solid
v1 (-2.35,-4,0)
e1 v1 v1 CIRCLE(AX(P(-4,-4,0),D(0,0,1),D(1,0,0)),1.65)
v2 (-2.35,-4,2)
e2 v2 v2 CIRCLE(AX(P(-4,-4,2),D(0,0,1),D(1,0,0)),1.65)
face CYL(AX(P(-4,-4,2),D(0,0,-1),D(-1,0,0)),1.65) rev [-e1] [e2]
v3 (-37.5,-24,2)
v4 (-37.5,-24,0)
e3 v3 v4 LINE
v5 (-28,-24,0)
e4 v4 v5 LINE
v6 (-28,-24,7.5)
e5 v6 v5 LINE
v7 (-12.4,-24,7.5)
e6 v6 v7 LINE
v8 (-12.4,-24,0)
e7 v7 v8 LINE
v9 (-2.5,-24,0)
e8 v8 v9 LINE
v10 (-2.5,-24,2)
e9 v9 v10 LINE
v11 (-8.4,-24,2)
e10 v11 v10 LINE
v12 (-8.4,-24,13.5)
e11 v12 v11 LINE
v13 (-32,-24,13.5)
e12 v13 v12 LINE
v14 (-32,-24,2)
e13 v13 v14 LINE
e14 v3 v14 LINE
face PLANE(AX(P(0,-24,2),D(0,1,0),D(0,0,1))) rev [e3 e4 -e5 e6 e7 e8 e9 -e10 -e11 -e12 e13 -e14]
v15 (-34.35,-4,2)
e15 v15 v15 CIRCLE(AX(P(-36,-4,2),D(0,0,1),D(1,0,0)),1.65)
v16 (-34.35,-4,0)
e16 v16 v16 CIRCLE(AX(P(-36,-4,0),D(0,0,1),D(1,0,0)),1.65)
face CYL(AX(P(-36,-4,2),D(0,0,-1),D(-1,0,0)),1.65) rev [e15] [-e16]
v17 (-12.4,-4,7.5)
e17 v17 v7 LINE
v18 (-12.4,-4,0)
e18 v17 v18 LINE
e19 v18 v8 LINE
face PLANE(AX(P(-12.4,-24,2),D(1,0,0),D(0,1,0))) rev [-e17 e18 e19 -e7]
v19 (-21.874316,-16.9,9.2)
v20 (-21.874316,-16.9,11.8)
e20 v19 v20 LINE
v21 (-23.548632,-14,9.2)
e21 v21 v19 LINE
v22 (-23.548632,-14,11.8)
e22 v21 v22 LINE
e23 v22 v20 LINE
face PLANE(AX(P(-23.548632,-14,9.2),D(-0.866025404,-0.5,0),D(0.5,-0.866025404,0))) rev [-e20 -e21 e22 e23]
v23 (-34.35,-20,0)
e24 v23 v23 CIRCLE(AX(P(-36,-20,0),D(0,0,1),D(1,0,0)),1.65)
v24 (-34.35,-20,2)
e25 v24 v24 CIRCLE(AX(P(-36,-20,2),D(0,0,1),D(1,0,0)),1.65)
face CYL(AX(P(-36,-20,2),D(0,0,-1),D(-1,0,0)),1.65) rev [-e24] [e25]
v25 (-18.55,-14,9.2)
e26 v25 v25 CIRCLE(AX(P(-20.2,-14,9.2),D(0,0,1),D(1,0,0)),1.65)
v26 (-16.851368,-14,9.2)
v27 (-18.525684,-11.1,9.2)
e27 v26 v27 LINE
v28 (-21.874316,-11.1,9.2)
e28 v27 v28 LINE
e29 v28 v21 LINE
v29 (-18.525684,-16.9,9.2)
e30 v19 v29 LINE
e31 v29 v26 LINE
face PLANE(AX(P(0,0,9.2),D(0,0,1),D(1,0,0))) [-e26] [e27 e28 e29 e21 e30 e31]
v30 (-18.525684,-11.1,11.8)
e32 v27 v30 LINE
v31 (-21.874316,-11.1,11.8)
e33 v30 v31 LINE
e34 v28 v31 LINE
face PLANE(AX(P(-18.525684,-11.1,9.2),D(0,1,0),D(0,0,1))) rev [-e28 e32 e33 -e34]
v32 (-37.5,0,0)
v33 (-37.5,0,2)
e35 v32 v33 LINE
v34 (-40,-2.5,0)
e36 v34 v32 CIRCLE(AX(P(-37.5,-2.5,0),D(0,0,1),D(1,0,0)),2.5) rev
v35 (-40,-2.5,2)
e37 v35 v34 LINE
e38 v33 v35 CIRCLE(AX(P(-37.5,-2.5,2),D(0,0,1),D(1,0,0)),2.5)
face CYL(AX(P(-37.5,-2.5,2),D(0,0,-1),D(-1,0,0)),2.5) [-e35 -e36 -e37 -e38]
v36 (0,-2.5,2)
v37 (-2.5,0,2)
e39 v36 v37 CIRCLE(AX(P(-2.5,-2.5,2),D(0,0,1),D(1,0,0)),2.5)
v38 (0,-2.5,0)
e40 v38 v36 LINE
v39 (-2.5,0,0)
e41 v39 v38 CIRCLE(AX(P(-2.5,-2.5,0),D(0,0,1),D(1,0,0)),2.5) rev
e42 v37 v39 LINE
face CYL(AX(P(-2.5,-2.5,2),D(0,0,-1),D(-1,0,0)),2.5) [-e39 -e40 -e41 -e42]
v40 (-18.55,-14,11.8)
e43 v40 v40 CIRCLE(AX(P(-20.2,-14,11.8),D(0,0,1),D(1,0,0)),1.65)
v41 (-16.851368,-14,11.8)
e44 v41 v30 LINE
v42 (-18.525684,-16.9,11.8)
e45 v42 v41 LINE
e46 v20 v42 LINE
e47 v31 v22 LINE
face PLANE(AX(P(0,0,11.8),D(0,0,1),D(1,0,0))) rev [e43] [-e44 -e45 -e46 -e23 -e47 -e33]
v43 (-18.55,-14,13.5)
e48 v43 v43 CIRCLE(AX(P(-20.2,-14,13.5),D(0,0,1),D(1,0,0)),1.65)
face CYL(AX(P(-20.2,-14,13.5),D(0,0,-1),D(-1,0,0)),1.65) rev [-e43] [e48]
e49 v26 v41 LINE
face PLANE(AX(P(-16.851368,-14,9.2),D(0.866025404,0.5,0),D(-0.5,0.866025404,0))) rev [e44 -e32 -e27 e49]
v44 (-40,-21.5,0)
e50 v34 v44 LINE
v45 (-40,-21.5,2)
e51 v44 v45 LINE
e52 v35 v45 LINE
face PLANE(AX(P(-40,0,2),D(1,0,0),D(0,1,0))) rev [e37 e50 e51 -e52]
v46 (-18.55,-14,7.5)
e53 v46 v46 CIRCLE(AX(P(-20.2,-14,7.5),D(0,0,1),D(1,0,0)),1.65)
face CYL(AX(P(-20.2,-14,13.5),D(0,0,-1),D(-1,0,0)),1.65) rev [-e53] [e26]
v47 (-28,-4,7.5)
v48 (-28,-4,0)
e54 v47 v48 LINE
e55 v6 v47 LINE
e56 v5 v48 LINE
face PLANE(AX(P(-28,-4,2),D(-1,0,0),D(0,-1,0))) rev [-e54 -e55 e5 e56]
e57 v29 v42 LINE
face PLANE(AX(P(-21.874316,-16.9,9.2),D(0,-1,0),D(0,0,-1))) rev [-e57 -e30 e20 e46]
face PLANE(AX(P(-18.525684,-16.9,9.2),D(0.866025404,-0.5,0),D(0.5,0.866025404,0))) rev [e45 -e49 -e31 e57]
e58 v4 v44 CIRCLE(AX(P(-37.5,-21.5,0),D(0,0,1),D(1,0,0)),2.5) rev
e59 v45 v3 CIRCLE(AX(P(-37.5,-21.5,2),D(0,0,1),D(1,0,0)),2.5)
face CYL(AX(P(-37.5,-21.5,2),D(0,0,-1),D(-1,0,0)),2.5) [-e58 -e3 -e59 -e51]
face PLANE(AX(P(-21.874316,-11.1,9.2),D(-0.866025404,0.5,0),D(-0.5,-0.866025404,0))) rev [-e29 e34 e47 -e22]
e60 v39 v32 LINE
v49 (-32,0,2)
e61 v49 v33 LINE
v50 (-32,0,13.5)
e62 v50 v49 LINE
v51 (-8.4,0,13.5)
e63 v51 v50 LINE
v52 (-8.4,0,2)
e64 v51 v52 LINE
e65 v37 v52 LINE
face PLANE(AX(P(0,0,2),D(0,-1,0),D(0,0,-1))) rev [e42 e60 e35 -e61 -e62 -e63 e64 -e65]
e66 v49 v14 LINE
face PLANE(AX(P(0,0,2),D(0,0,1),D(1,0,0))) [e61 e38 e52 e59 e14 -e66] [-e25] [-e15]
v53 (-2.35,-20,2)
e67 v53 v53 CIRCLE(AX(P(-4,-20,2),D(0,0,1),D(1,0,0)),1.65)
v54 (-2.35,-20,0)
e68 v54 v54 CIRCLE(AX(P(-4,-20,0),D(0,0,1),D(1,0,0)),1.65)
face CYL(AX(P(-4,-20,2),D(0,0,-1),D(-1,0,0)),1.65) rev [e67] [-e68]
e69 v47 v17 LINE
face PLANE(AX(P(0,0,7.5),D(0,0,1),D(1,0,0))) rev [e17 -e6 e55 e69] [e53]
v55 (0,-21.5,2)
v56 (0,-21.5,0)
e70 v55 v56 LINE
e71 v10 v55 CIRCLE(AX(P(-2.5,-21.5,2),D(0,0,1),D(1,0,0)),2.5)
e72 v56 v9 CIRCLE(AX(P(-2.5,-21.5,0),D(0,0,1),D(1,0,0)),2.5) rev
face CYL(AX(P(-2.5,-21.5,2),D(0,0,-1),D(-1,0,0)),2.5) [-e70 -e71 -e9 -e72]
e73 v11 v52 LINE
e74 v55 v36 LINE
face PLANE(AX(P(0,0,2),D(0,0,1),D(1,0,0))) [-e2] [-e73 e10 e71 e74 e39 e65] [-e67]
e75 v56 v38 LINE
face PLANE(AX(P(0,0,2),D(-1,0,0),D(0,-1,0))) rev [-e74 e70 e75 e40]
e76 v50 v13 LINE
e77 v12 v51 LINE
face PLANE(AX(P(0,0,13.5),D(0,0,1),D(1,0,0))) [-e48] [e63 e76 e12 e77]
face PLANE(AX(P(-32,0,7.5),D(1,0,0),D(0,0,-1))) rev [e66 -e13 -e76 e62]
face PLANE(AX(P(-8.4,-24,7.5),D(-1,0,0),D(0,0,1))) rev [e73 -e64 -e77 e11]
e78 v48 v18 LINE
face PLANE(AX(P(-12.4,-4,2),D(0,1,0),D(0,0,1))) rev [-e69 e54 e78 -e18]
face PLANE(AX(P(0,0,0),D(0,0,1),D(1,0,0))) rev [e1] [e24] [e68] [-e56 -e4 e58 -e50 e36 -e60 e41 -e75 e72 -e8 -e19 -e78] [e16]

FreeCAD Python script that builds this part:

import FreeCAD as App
import Part
import Sketcher
from FreeCAD import Vector
Q = App.Units.Quantity


def edges_at(feature, points):
    """Names of the edges that pass closest to the given points."""
    edges = feature.Shape.Edges
    near = lambda p: min(range(len(edges)), key=lambda i: edges[i].distToShape(Part.Vertex(*p))[0])
    return sorted({f"Edge{near(p) + 1}" for p in points})

doc = App.newDocument("Part")
body = doc.addObject("PartDesign::Body", "Body")

# Sketch on XY plane
sketch1 = doc.addObject("Sketcher::SketchObject", "Sketch")
body.addObject(sketch1)
sketch1.AttachmentSupport = (doc.XY_Plane, [""])
sketch1.MapMode = "FlatFace"
sketch1.addGeometry(Part.LineSegment(Vector(-12.4, -4, 0), Vector(-12.4, -24, 0)), False)
sketch1.addGeometry(Part.LineSegment(Vector(-12.4, -24, 0), Vector(0, -24, 0)), False)
sketch1.addGeometry(Part.LineSegment(Vector(0, -24, 0), Vector(0, 0, 0)), False)
sketch1.addGeometry(Part.LineSegment(Vector(0, 0, 0), Vector(-40, 0, 0)), False)
sketch1.addGeometry(Part.LineSegment(Vector(-40, 0, 0), Vector(-40, -24, 0)), False)
sketch1.addGeometry(Part.LineSegment(Vector(-40, -24, 0), Vector(-28, -24, 0)), False)
sketch1.addGeometry(Part.LineSegment(Vector(-28, -24, 0), Vector(-28, -4, 0)), False)
sketch1.addGeometry(Part.LineSegment(Vector(-28, -4, 0), Vector(-12.4, -4, 0)), False)
sketch1.addGeometry(Part.Circle(Vector(-4, -4, 0), Vector(0, 0, 1), 1.65), False)
sketch1.addGeometry(Part.Circle(Vector(-4, -20, 0), Vector(0, 0, 1), 1.65), False)
sketch1.addGeometry(Part.Circle(Vector(-36, -4, 0), Vector(0, 0, 1), 1.65), False)
sketch1.addGeometry(Part.Circle(Vector(-36, -20, 0), Vector(0, 0, 1), 1.65), False)
sketch1.addConstraint(Sketcher.Constraint("Coincident", 0, 2, 1, 1))
sketch1.addConstraint(Sketcher.Constraint("Coincident", 1, 2, 2, 1))
sketch1.addConstraint(Sketcher.Constraint("Coincident", 2, 2, 3, 1))
sketch1.addConstraint(Sketcher.Constraint("Coincident", 3, 2, 4, 1))
sketch1.addConstraint(Sketcher.Constraint("Coincident", 4, 2, 5, 1))
sketch1.addConstraint(Sketcher.Constraint("Coincident", 5, 2, 6, 1))
sketch1.addConstraint(Sketcher.Constraint("Coincident", 6, 2, 7, 1))
sketch1.addConstraint(Sketcher.Constraint("Coincident", 7, 2, 0, 1))
sketch1.addConstraint(Sketcher.Constraint("Vertical", 0))
sketch1.addConstraint(Sketcher.Constraint("Horizontal", 1))
sketch1.addConstraint(Sketcher.Constraint("Vertical", 2))
sketch1.addConstraint(Sketcher.Constraint("Horizontal", 3))
sketch1.addConstraint(Sketcher.Constraint("Vertical", 4))
sketch1.addConstraint(Sketcher.Constraint("Horizontal", 5))
sketch1.addConstraint(Sketcher.Constraint("Vertical", 6))
sketch1.addConstraint(Sketcher.Constraint("Horizontal", 7))
sketch1.addConstraint(Sketcher.Constraint("Coincident", 2, 2, -1, 1))
sketch1.addConstraint(Sketcher.Constraint("Equal", 8, 9))
sketch1.addConstraint(Sketcher.Constraint("Equal", 9, 10))
sketch1.addConstraint(Sketcher.Constraint("Equal", 10, 11))
sketch1.addConstraint(Sketcher.Constraint("Horizontal", 8, 3, 10, 3))
sketch1.addConstraint(Sketcher.Constraint("Horizontal", 9, 3, 11, 3))
sketch1.addConstraint(Sketcher.Constraint("Horizontal", 1, 2, 4, 2))
sketch1.addConstraint(Sketcher.Constraint("Horizontal", 10, 3, 6, 2))
sketch1.addConstraint(Sketcher.Constraint("Vertical", 8, 3, 9, 3))
sketch1.addConstraint(Sketcher.Constraint("Vertical", 10, 3, 11, 3))
sketch1.addConstraint(Sketcher.Constraint("Diameter", 8, Q("3.3 mm")))
sketch1.addConstraint(Sketcher.Constraint("DistanceX", 3, 2, 3, 1, Q("40 mm")))
sketch1.addConstraint(Sketcher.Constraint("DistanceX", 5, 1, 5, 2, Q("12 mm")))
sketch1.addConstraint(Sketcher.Constraint("DistanceY", 0, 2, 0, 1, Q("20 mm")))
sketch1.addConstraint(Sketcher.Constraint("DistanceY", 2, 1, 2, 2, Q("24 mm")))
sketch1.addConstraint(Sketcher.Constraint("DistanceX", 1, 1, 1, 2, Q("12.4 mm")))
sketch1.addConstraint(Sketcher.Constraint("DistanceX", 8, 3, -1, 1, Q("4 mm")))
sketch1.addConstraint(Sketcher.Constraint("DistanceY", 9, 3, -1, 1, Q("20 mm")))
sketch1.addConstraint(Sketcher.Constraint("DistanceX", 10, 3, -1, 1, Q("36 mm")))
pad1 = doc.addObject("PartDesign::Pad", "Pad")
body.addObject(pad1)
pad1.Profile = sketch1
pad1.Length = 2

# Sketch on XY plane
sketch2 = doc.addObject("Sketcher::SketchObject", "Sketch001")
body.addObject(sketch2)
sketch2.AttachmentSupport = (doc.XY_Plane, [""])
sketch2.MapMode = "FlatFace"
sketch2.AttachmentOffset = App.Placement(Vector(0, 0, 2), App.Rotation())
sketch2.addGeometry(Part.LineSegment(Vector(-28, -24, 0), Vector(-28, -4, 0)), False)
sketch2.addGeometry(Part.LineSegment(Vector(-28, -4, 0), Vector(-12.4, -4, 0)), False)
sketch2.addGeometry(Part.LineSegment(Vector(-12.4, -4, 0), Vector(-12.4, -24, 0)), False)
sketch2.addGeometry(Part.LineSegment(Vector(-12.4, -24, 0), Vector(-8.4, -24, 0)), False)
sketch2.addGeometry(Part.LineSegment(Vector(-8.4, -24, 0), Vector(-8.4, 0, 0)), False)
sketch2.addGeometry(Part.LineSegment(Vector(-8.4, 0, 0), Vector(-32, 0, 0)), False)
sketch2.addGeometry(Part.LineSegment(Vector(-32, 0, 0), Vector(-32, -24, 0)), False)
sketch2.addGeometry(Part.LineSegment(Vector(-32, -24, 0), Vector(-28, -24, 0)), False)
sketch2.addConstraint(Sketcher.Constraint("Coincident", 0, 2, 1, 1))
sketch2.addConstraint(Sketcher.Constraint("Coincident", 1, 2, 2, 1))
sketch2.addConstraint(Sketcher.Constraint("Coincident", 2, 2, 3, 1))
sketch2.addConstraint(Sketcher.Constraint("Coincident", 3, 2, 4, 1))
sketch2.addConstraint(Sketcher.Constraint("Coincident", 4, 2, 5, 1))
sketch2.addConstraint(Sketcher.Constraint("Coincident", 5, 2, 6, 1))
sketch2.addConstraint(Sketcher.Constraint("Coincident", 6, 2, 7, 1))
sketch2.addConstraint(Sketcher.Constraint("Coincident", 7, 2, 0, 1))
sketch2.addConstraint(Sketcher.Constraint("Vertical", 0))
sketch2.addConstraint(Sketcher.Constraint("Horizontal", 1))
sketch2.addConstraint(Sketcher.Constraint("Vertical", 2))
sketch2.addConstraint(Sketcher.Constraint("Horizontal", 3))
sketch2.addConstraint(Sketcher.Constraint("Vertical", 4))
sketch2.addConstraint(Sketcher.Constraint("Horizontal", 5))
sketch2.addConstraint(Sketcher.Constraint("Vertical", 6))
sketch2.addConstraint(Sketcher.Constraint("Horizontal", 7))
sketch2.addConstraint(Sketcher.Constraint("PointOnObject", 4, 2, -1))
sketch2.addConstraint(Sketcher.Constraint("Horizontal", 3, 2, 6, 2))
sketch2.addConstraint(Sketcher.Constraint("Equal", 3, 7))
sketch2.addConstraint(Sketcher.Constraint("DistanceX", 3, 1, 3, 2, Q("4 mm")))
sketch2.addConstraint(Sketcher.Constraint("DistanceY", 0, 1, 0, 2, Q("20 mm")))
sketch2.addConstraint(Sketcher.Constraint("DistanceY", 4, 1, 4, 2, Q("24 mm")))
sketch2.addConstraint(Sketcher.Constraint("DistanceX", 1, 1, 1, 2, Q("15.6 mm")))
sketch2.addConstraint(Sketcher.Constraint("DistanceX", 0, 2, -1, 1, Q("28 mm")))
pad2 = doc.addObject("PartDesign::Pad", "Pad001")
body.addObject(pad2)
pad2.Profile = sketch2
pad2.Length = 5.5

# Sketch on XY plane
sketch3 = doc.addObject("Sketcher::SketchObject", "Sketch002")
body.addObject(sketch3)
sketch3.AttachmentSupport = (doc.XY_Plane, [""])
sketch3.MapMode = "FlatFace"
sketch3.AttachmentOffset = App.Placement(Vector(0, 0, 7.5), App.Rotation())
sketch3.addGeometry(Part.LineSegment(Vector(-32, 0, 0), Vector(-32, -24, 0)), False)
sketch3.addGeometry(Part.LineSegment(Vector(-32, -24, 0), Vector(-8.4, -24, 0)), False)
sketch3.addGeometry(Part.LineSegment(Vector(-8.4, -24, 0), Vector(-8.4, 0, 0)), False)
sketch3.addGeometry(Part.LineSegment(Vector(-8.4, 0, 0), Vector(-32, 0, 0)), False)
sketch3.addGeometry(Part.Circle(Vector(-20.2, -14, 0), Vector(0, 0, 1), 1.65), False)
sketch3.addConstraint(Sketcher.Constraint("Coincident", 0, 2, 1, 1))
sketch3.addConstraint(Sketcher.Constraint("Coincident", 1, 2, 2, 1))
sketch3.addConstraint(Sketcher.Constraint("Coincident", 2, 2, 3, 1))
sketch3.addConstraint(Sketcher.Constraint("Coincident", 3, 2, 0, 1))
sketch3.addConstraint(Sketcher.Constraint("Vertical", 0))
sketch3.addConstraint(Sketcher.Constraint("Horizontal", 1))
sketch3.addConstraint(Sketcher.Constraint("Vertical", 2))
sketch3.addConstraint(Sketcher.Constraint("Horizontal", 3))
sketch3.addConstraint(Sketcher.Constraint("PointOnObject", 2, 2, -1))
sketch3.addConstraint(Sketcher.Constraint("Diameter", 4, Q("3.3 mm")))
sketch3.addConstraint(Sketcher.Constraint("DistanceY", 0, 2, 0, 1, Q("24 mm")))
sketch3.addConstraint(Sketcher.Constraint("DistanceX", 1, 1, 1, 2, Q("23.6 mm")))
sketch3.addConstraint(Sketcher.Constraint("DistanceY", 4, 3, -1, 1, Q("14 mm")))
sketch3.addConstraint(Sketcher.Constraint("DistanceX", 0, 2, -1, 1, Q("32 mm")))
sketch3.addConstraint(Sketcher.Constraint("DistanceX", 4, 3, -1, 1, Q("20.2 mm")))
pad3 = doc.addObject("PartDesign::Pad", "Pad002")
body.addObject(pad3)
pad3.Profile = sketch3
pad3.Length = 6

# Sketch on XY plane
sketch4 = doc.addObject("Sketcher::SketchObject", "Sketch003")
body.addObject(sketch4)
sketch4.AttachmentSupport = (doc.XY_Plane, [""])
sketch4.MapMode = "FlatFace"
sketch4.AttachmentOffset = App.Placement(Vector(0, 0, 11.8), App.Rotation())
sketch4.addGeometry(Part.LineSegment(Vector(-16.851368, -14, 0), Vector(-18.525684, -11.1, 0)), False)
sketch4.addGeometry(Part.LineSegment(Vector(-18.525684, -11.1, 0), Vector(-21.874316, -11.1, 0)), False)
sketch4.addGeometry(Part.LineSegment(Vector(-21.874316, -11.1, 0), Vector(-23.548632, -14, 0)), False)
sketch4.addGeometry(Part.LineSegment(Vector(-23.548632, -14, 0), Vector(-21.874316, -16.9, 0)), False)
sketch4.addGeometry(Part.LineSegment(Vector(-21.874316, -16.9, 0), Vector(-18.525684, -16.9, 0)), False)
sketch4.addGeometry(Part.LineSegment(Vector(-18.525684, -16.9, 0), Vector(-16.851368, -14, 0)), False)
sketch4.addConstraint(Sketcher.Constraint("Coincident", 0, 2, 1, 1))
sketch4.addConstraint(Sketcher.Constraint("Coincident", 1, 2, 2, 1))
sketch4.addConstraint(Sketcher.Constraint("Coincident", 2, 2, 3, 1))
sketch4.addConstraint(Sketcher.Constraint("Coincident", 3, 2, 4, 1))
sketch4.addConstraint(Sketcher.Constraint("Coincident", 4, 2, 5, 1))
sketch4.addConstraint(Sketcher.Constraint("Coincident", 5, 2, 0, 1))
sketch4.addConstraint(Sketcher.Constraint("Horizontal", 1))
sketch4.addConstraint(Sketcher.Constraint("Horizontal", 4))
sketch4.addConstraint(Sketcher.Constraint("Parallel", 0, 3))
sketch4.addConstraint(Sketcher.Constraint("Parallel", 2, 5))
sketch4.addConstraint(Sketcher.Constraint("Horizontal", 2, 2, 5, 2))
sketch4.addConstraint(Sketcher.Constraint("Vertical", 1, 2, 3, 2))
sketch4.addConstraint(Sketcher.Constraint("Vertical", 0, 2, 4, 2))
sketch4.addConstraint(Sketcher.Constraint("Angle", 0, Q("120 deg")))
sketch4.addConstraint(Sketcher.Constraint("DistanceY", 2, 2, -1, 1, Q("14 mm")))
sketch4.addConstraint(Sketcher.Constraint("DistanceY", 0, 2, -1, 1, Q("11.1 mm")))
sketch4.addConstraint(Sketcher.Constraint("DistanceX", 1, 2, 1, 1, Q("3.348632 mm")))
sketch4.addConstraint(Sketcher.Constraint("DistanceX", 2, 2, -1, 1, Q("23.548632 mm")))
pocket1 = doc.addObject("PartDesign::Pocket", "Pocket")
body.addObject(pocket1)
pocket1.Profile = sketch4
pocket1.Length = 2.6
doc.recompute()

fillet = doc.addObject("PartDesign::Fillet", "Fillet")
body.addObject(fillet)
fillet.Base = (pocket1, edges_at(pocket1, [
    (0, 0, 1),
    (0, -24, 1),
    (-40, -24, 1),
    (-40, 0, 1),
]))
fillet.Radius = 2.5

doc.recompute()
